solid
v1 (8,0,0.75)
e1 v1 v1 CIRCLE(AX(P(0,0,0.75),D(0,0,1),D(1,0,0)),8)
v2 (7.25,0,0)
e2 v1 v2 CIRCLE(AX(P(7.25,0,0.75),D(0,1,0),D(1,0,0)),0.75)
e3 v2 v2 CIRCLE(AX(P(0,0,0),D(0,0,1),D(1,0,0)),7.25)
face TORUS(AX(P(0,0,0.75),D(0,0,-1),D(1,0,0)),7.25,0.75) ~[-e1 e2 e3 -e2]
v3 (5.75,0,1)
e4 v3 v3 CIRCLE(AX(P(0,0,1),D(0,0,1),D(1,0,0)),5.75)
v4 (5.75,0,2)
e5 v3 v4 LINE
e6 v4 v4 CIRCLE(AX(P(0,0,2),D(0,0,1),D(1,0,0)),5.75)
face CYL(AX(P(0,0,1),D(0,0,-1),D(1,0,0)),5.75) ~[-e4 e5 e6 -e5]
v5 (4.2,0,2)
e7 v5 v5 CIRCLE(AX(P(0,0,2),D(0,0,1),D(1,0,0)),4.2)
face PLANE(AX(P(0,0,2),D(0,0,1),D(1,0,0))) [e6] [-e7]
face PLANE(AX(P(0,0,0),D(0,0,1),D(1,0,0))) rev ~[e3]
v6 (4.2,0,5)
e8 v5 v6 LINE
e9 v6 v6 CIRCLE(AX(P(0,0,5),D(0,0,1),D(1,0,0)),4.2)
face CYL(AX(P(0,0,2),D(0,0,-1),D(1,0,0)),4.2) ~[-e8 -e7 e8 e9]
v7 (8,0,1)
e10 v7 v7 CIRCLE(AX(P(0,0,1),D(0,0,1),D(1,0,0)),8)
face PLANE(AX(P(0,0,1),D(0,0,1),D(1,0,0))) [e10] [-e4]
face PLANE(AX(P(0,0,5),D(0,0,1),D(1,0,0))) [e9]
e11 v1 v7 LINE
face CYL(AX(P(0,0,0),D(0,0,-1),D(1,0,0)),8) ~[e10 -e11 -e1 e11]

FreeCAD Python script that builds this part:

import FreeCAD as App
import Part
import Sketcher
from FreeCAD import Vector


def edges_at(feature, points):
    """Names of the edges that pass closest to the given points."""
    edges = feature.Shape.Edges
    near = lambda p: min(range(len(edges)), key=lambda i: edges[i].distToShape(Part.Vertex(*p))[0])
    return sorted({f"Edge{near(p) + 1}" for p in points})

doc = App.newDocument("Part")
body = doc.addObject("PartDesign::Body", "Body")

# Sketch on XY plane
sketch1 = doc.addObject("Sketcher::SketchObject", "Sketch")
body.addObject(sketch1)
sketch1.AttachmentSupport = (doc.XY_Plane, [""])
sketch1.MapMode = "FlatFace"
sketch1.addGeometry(Part.Circle(Vector(0, 0, 0), Vector(0, 0, 1), 8), False)
sketch1.addConstraint([
    Sketcher.Constraint("Coincident", 0, 3, -1, 1),
    Sketcher.Constraint("Diameter", 0, 16.0),
])
pad1 = doc.addObject("PartDesign::Pad", "Pad")
body.addObject(pad1)
pad1.Profile = sketch1
pad1.Length = 1

# Sketch on XY plane
sketch2 = doc.addObject("Sketcher::SketchObject", "Sketch001")
body.addObject(sketch2)
sketch2.AttachmentSupport = (doc.XY_Plane, [""])
sketch2.MapMode = "FlatFace"
sketch2.AttachmentOffset = App.Placement(Vector(0, 0, 1), App.Rotation())
sketch2.addGeometry(Part.Circle(Vector(0, 0, 0), Vector(0, 0, 1), 6), False)
sketch2.addConstraint([
    Sketcher.Constraint("Coincident", 0, 3, -1, 1),
    Sketcher.Constraint("Diameter", 0, 11.5),
])
pad2 = doc.addObject("PartDesign::Pad", "Pad001")
body.addObject(pad2)
pad2.Profile = sketch2
pad2.Length = 1

# Sketch on XY plane
sketch3 = doc.addObject("Sketcher::SketchObject", "Sketch002")
body.addObject(sketch3)
sketch3.AttachmentSupport = (doc.XY_Plane, [""])
sketch3.MapMode = "FlatFace"
sketch3.AttachmentOffset = App.Placement(Vector(0, 0, 2), App.Rotation())
sketch3.addGeometry(Part.Circle(Vector(0, 0, 0), Vector(0, 0, 1), 4.2), False)
sketch3.addConstraint([
    Sketcher.Constraint("Coincident", 0, 3, -1, 1),
    Sketcher.Constraint("Diameter", 0, 8.4),
])
pad3 = doc.addObject("PartDesign::Pad", "Pad002")
body.addObject(pad3)
pad3.Profile = sketch3
pad3.Length = 3
doc.recompute()

fillet = doc.addObject("PartDesign::Fillet", "Fillet")
body.addObject(fillet)
fillet.Base = (pad3, edges_at(pad3, [(-8, 0, 0)]))
fillet.Radius = 0.75

doc.recompute()
